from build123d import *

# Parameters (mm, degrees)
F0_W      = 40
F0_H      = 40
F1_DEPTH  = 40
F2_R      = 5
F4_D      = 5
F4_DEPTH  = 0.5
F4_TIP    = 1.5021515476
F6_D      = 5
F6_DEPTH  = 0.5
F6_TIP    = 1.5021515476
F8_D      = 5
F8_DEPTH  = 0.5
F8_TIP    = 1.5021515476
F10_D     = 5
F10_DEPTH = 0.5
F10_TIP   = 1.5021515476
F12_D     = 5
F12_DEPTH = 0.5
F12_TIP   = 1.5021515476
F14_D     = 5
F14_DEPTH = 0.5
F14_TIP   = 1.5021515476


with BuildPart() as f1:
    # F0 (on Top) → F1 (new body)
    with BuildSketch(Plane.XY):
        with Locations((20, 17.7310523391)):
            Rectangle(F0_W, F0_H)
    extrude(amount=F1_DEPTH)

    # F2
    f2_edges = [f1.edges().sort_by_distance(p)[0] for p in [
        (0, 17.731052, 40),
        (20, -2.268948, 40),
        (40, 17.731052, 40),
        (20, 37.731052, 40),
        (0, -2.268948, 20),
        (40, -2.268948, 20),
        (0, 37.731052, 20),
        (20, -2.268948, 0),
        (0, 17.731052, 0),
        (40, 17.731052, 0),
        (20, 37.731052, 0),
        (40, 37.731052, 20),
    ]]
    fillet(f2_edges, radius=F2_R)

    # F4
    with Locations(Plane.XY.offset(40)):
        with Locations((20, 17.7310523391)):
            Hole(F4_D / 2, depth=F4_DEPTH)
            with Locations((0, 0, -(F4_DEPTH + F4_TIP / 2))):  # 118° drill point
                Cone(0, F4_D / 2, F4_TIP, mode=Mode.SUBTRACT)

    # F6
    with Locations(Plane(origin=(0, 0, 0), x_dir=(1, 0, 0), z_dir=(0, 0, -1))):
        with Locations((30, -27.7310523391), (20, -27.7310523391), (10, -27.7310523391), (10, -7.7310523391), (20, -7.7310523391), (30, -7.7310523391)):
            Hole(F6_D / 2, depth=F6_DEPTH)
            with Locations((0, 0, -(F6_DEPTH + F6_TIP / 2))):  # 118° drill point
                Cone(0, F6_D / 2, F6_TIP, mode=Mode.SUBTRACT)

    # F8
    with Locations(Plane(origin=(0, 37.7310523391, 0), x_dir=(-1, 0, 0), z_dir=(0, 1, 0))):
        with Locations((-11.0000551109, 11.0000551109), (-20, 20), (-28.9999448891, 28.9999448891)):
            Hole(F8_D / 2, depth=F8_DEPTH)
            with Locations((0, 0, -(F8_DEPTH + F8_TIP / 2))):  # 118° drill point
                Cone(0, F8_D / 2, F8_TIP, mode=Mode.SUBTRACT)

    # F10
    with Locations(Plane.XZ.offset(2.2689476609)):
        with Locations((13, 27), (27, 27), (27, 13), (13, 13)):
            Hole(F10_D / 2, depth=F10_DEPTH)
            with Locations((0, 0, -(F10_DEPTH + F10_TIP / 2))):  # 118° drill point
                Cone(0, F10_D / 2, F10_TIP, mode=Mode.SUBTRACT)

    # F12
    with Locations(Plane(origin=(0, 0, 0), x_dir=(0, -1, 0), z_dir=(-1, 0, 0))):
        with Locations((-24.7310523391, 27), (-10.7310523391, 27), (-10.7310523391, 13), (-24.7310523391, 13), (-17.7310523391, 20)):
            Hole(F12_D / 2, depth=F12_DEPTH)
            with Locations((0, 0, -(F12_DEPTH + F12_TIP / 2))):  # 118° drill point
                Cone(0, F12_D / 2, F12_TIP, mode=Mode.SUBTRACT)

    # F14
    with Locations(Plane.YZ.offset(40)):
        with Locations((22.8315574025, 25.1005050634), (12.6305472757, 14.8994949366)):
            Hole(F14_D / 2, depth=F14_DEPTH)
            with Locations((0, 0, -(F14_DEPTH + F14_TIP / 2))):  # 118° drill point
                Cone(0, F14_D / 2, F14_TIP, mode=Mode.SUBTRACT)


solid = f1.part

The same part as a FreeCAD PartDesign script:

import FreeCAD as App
import Part
import Sketcher
from FreeCAD import Vector
Q = App.Units.Quantity


def add_polygon(sketch, points):
    """Adds a closed chain of lines whose ends are joined by coincident constraints."""
    first, n = sketch.GeometryCount, len(points)
    for a, b in zip(points, points[1:] + points[:1]):
        sketch.addGeometry(Part.LineSegment(App.Vector(*a, 0), App.Vector(*b, 0)), False)
    for i in range(n):
        sketch.addConstraint(Sketcher.Constraint("Coincident", first + i, 2, first + (i + 1) % n, 1))

doc = App.newDocument("Part")
body = doc.addObject("PartDesign::Body", "Body")

# Sketch on XY plane
sketch1 = doc.addObject("Sketcher::SketchObject", "Sketch")
body.addObject(sketch1)
sketch1.AttachmentSupport = (doc.XY_Plane, [""])
sketch1.MapMode = "FlatFace"
add_polygon(sketch1, [(0, 37.731052), (0, -2.268948), (40, -2.268948), (40, 37.731052)])  # lines 0-3
sketch1.addConstraint([
    Sketcher.Constraint("Vertical", 0),
    Sketcher.Constraint("Horizontal", 1),
    Sketcher.Constraint("Vertical", 2),
    Sketcher.Constraint("Horizontal", 3),
    Sketcher.Constraint("PointOnObject", 0, 2, -2),
    Sketcher.Constraint("Equal", 3, 0),
    Sketcher.Constraint("DistanceX", 1, 1, 1, 2, Q("40 mm")),
    Sketcher.Constraint("DistanceY", 0, 2, -1, 1, Q("2.268948 mm")),
])
pad1 = doc.addObject("PartDesign::Pad", "Pad")
body.addObject(pad1)
pad1.Profile = sketch1
pad1.Length = 40
doc.recompute()

fillet = doc.addObject("PartDesign::Fillet", "Fillet")
body.addObject(fillet)
fillet.Base = (pad1, ["Edge1"])
fillet.UseAllEdges = True
fillet.Radius = 5

# Sketch on XY plane
sketch2 = doc.addObject("Sketcher::SketchObject", "Sketch001")
body.addObject(sketch2)
sketch2.AttachmentSupport = (doc.XY_Plane, [""])
sketch2.MapMode = "FlatFace"
sketch2.AttachmentOffset = App.Placement(Vector(0, 0, 40), App.Rotation())
sketch2.addGeometry(Part.Circle(Vector(20, 17.731052, 0), Vector(0, 0, 1), 2.5), False)
sketch2.addConstraint([
    Sketcher.Constraint("Diameter", 0, Q("5 mm")),
    Sketcher.Constraint("DistanceX", -1, 1, 0, 3, Q("20 mm")),
    Sketcher.Constraint("DistanceY", -1, 1, 0, 3, Q("17.731052 mm")),
])
doc.recompute()
hole = doc.addObject("PartDesign::Hole", "Hole")
body.addObject(hole)
hole.Profile = sketch2
hole.ThreadType = "None"
hole.Diameter = 5
hole.DepthType = "Dimension"
hole.Depth = 0.5
hole.DrillPoint = "Angled"
hole.DrillPointAngle = 118

# Sketch on XY plane
sketch3 = doc.addObject("Sketcher::SketchObject", "Sketch002")
body.addObject(sketch3)
sketch3.AttachmentSupport = (doc.XY_Plane, [""])
sketch3.MapMode = "FlatFace"
sketch3.addGeometry([
    Part.Circle(Vector(30, 27.731052, 0), Vector(0, 0, 1), 2.5),  # 0
    Part.Circle(Vector(20, 27.731052, 0), Vector(0, 0, 1), 2.5),  # 1
    Part.Circle(Vector(10, 27.731052, 0), Vector(0, 0, 1), 2.5),  # 2
    Part.Circle(Vector(10, 7.731052, 0), Vector(0, 0, 1), 2.5),  # 3
    Part.Circle(Vector(20, 7.731052, 0), Vector(0, 0, 1), 2.5),  # 4
    Part.Circle(Vector(30, 7.731052, 0), Vector(0, 0, 1), 2.5),  # 5
], False)
sketch3.addConstraint([
    Sketcher.Constraint("Equal", 0, 1),
    Sketcher.Constraint("Equal", 1, 2),
    Sketcher.Constraint("Equal", 2, 3),
    Sketcher.Constraint("Equal", 3, 4),
    Sketcher.Constraint("Equal", 4, 5),
    Sketcher.Constraint("Horizontal", 0, 3, 1, 3),
    Sketcher.Constraint("Horizontal", 1, 3, 2, 3),
    Sketcher.Constraint("Horizontal", 3, 3, 4, 3),
    Sketcher.Constraint("Horizontal", 4, 3, 5, 3),
    Sketcher.Constraint("Vertical", 2, 3, 3, 3),
    Sketcher.Constraint("Vertical", 1, 3, 4, 3),
    Sketcher.Constraint("Vertical", 0, 3, 5, 3),
    Sketcher.Constraint("Diameter", 0, Q("5 mm")),
    Sketcher.Constraint("DistanceX", -1, 1, 0, 3, Q("30 mm")),
    Sketcher.Constraint("DistanceX", -1, 1, 1, 3, Q("20 mm")),
    Sketcher.Constraint("DistanceX", -1, 1, 2, 3, Q("10 mm")),
    Sketcher.Constraint("DistanceY", 3, 3, 2, 3, Q("20 mm")),
    Sketcher.Constraint("DistanceY", -1, 1, 0, 3, Q("27.731052 mm")),
])
doc.recompute()
hole2 = doc.addObject("PartDesign::Hole", "Hole001")
body.addObject(hole2)
hole2.Profile = sketch3
hole2.ThreadType = "None"
hole2.Diameter = 5
hole2.DepthType = "Dimension"
hole2.Depth = 0.5
hole2.DrillPoint = "Angled"
hole2.DrillPointAngle = 118
hole2.Reversed = True

# Sketch on XZ plane
sketch4 = doc.addObject("Sketcher::SketchObject", "Sketch003")
body.addObject(sketch4)
sketch4.AttachmentSupport = (doc.XZ_Plane, [""])
sketch4.MapMode = "FlatFace"
sketch4.AttachmentOffset = App.Placement(Vector(0, 0, -37.731052), App.Rotation())
sketch4.addGeometry([
    Part.Circle(Vector(11.000055, 11.000055, 0), Vector(0, 0, 1), 2.5),
    Part.Circle(Vector(20, 20, 0), Vector(0, 0, 1), 2.5),
    Part.Circle(Vector(28.999945, 28.999945, 0), Vector(0, 0, 1), 2.5),
], False)
sketch4.addConstraint([
    Sketcher.Constraint("Equal", 0, 1),
    Sketcher.Constraint("Equal", 1, 2),
    Sketcher.Constraint("Diameter", 0, Q("5 mm")),
    Sketcher.Constraint("DistanceX", -1, 1, 1, 3, Q("20 mm")),
    Sketcher.Constraint("DistanceY", -1, 1, 1, 3, Q("20 mm")),
    Sketcher.Constraint("DistanceX", 0, 3, 2, 3, Q("17.99989 mm")),
    Sketcher.Constraint("DistanceY", 0, 3, 2, 3, Q("17.99989 mm")),
    Sketcher.Constraint("DistanceX", -1, 1, 0, 3, Q("11.000055 mm")),
    Sketcher.Constraint("DistanceY", -1, 1, 0, 3, Q("11.000055 mm")),
])
doc.recompute()
hole3 = doc.addObject("PartDesign::Hole", "Hole002")
body.addObject(hole3)
hole3.Profile = sketch4
hole3.ThreadType = "None"
hole3.Diameter = 5
hole3.DepthType = "Dimension"
hole3.Depth = 0.5
hole3.DrillPoint = "Angled"
hole3.DrillPointAngle = 118
hole3.Reversed = True

# Sketch on XZ plane
sketch5 = doc.addObject("Sketcher::SketchObject", "Sketch004")
body.addObject(sketch5)
sketch5.AttachmentSupport = (doc.XZ_Plane, [""])
sketch5.MapMode = "FlatFace"
sketch5.AttachmentOffset = App.Placement(Vector(0, 0, 2.268948), App.Rotation())
sketch5.addGeometry([
    Part.Circle(Vector(13, 27, 0), Vector(0, 0, 1), 2.5),
    Part.Circle(Vector(27, 27, 0), Vector(0, 0, 1), 2.5),
    Part.Circle(Vector(27, 13, 0), Vector(0, 0, 1), 2.5),
    Part.Circle(Vector(13, 13, 0), Vector(0, 0, 1), 2.5),
], False)
sketch5.addConstraint([
    Sketcher.Constraint("Equal", 0, 1),
    Sketcher.Constraint("Equal", 1, 2),
    Sketcher.Constraint("Equal", 2, 3),
    Sketcher.Constraint("Horizontal", 0, 3, 1, 3),
    Sketcher.Constraint("Horizontal", 2, 3, 3, 3),
    Sketcher.Constraint("Vertical", 1, 3, 2, 3),
    Sketcher.Constraint("Vertical", 0, 3, 3, 3),
    Sketcher.Constraint("Diameter", 0, Q("5 mm")),
    Sketcher.Constraint("DistanceX", -1, 1, 0, 3, Q("13 mm")),
    Sketcher.Constraint("DistanceY", -1, 1, 0, 3, Q("27 mm")),
    Sketcher.Constraint("DistanceX", -1, 1, 1, 3, Q("27 mm")),
    Sketcher.Constraint("DistanceY", -1, 1, 2, 3, Q("13 mm")),
])
doc.recompute()
hole4 = doc.addObject("PartDesign::Hole", "Hole003")
body.addObject(hole4)
hole4.Profile = sketch5
hole4.ThreadType = "None"
hole4.Diameter = 5
hole4.DepthType = "Dimension"
hole4.Depth = 0.5
hole4.DrillPoint = "Angled"
hole4.DrillPointAngle = 118

# Sketch on YZ plane
sketch6 = doc.addObject("Sketcher::SketchObject", "Sketch005")
body.addObject(sketch6)
sketch6.AttachmentSupport = (doc.YZ_Plane, [""])
sketch6.MapMode = "FlatFace"
sketch6.addGeometry([
    Part.Circle(Vector(24.731052, 27, 0), Vector(0, 0, 1), 2.5),  # 0
    Part.Circle(Vector(10.731052, 27, 0), Vector(0, 0, 1), 2.5),  # 1
    Part.Circle(Vector(10.731052, 13, 0), Vector(0, 0, 1), 2.5),  # 2
    Part.Circle(Vector(24.731052, 13, 0), Vector(0, 0, 1), 2.5),  # 3
    Part.Circle(Vector(17.731052, 20, 0), Vector(0, 0, 1), 2.5),  # 4
], False)
sketch6.addConstraint([
    Sketcher.Constraint("Equal", 0, 1),
    Sketcher.Constraint("Equal", 1, 2),
    Sketcher.Constraint("Equal", 2, 3),
    Sketcher.Constraint("Equal", 3, 4),
    Sketcher.Constraint("Horizontal", 0, 3, 1, 3),
    Sketcher.Constraint("Horizontal", 2, 3, 3, 3),
    Sketcher.Constraint("Vertical", 1, 3, 2, 3),
    Sketcher.Constraint("Vertical", 0, 3, 3, 3),
    Sketcher.Constraint("Diameter", 0, Q("5 mm")),
    Sketcher.Constraint("DistanceY", -1, 1, 0, 3, Q("27 mm")),
    Sketcher.Constraint("DistanceY", -1, 1, 2, 3, Q("13 mm")),
    Sketcher.Constraint("DistanceY", -1, 1, 4, 3, Q("20 mm")),
    Sketcher.Constraint("DistanceX", 1, 3, 0, 3, Q("14 mm")),
    Sketcher.Constraint("DistanceX", 4, 3, 0, 3, Q("7 mm")),
    Sketcher.Constraint("DistanceX", -1, 1, 0, 3, Q("24.731052 mm")),
])
doc.recompute()
hole5 = doc.addObject("PartDesign::Hole", "Hole004")
body.addObject(hole5)
hole5.Profile = sketch6
hole5.ThreadType = "None"
hole5.Diameter = 5
hole5.DepthType = "Dimension"
hole5.Depth = 0.5
hole5.DrillPoint = "Angled"
hole5.DrillPointAngle = 118
hole5.Reversed = True

# Sketch on YZ plane
sketch7 = doc.addObject("Sketcher::SketchObject", "Sketch006")
body.addObject(sketch7)
sketch7.AttachmentSupport = (doc.YZ_Plane, [""])
sketch7.MapMode = "FlatFace"
sketch7.AttachmentOffset = App.Placement(Vector(0, 0, 40), App.Rotation())
sketch7.addGeometry([
    Part.Circle(Vector(22.831557, 25.100505, 0), Vector(0, 0, 1), 2.5),
    Part.Circle(Vector(12.630547, 14.899495, 0), Vector(0, 0, 1), 2.5),
], False)
sketch7.addConstraint([
    Sketcher.Constraint("Equal", 0, 1),
    Sketcher.Constraint("Diameter", 0, Q("5 mm")),
    Sketcher.Constraint("DistanceX", 1, 3, 0, 3, Q("10.20101 mm")),
    Sketcher.Constraint("DistanceY", 1, 3, 0, 3, Q("10.20101 mm")),
    Sketcher.Constraint("DistanceX", -1, 1, 0, 3, Q("22.831557 mm")),
    Sketcher.Constraint("DistanceY", -1, 1, 0, 3, Q("25.100505 mm")),
])
doc.recompute()
hole6 = doc.addObject("PartDesign::Hole", "Hole005")
body.addObject(hole6)
hole6.Profile = sketch7
hole6.ThreadType = "None"
hole6.Diameter = 5
hole6.DepthType = "Dimension"
hole6.Depth = 0.5
hole6.DrillPoint = "Angled"
hole6.DrillPointAngle = 118

doc.recompute()
